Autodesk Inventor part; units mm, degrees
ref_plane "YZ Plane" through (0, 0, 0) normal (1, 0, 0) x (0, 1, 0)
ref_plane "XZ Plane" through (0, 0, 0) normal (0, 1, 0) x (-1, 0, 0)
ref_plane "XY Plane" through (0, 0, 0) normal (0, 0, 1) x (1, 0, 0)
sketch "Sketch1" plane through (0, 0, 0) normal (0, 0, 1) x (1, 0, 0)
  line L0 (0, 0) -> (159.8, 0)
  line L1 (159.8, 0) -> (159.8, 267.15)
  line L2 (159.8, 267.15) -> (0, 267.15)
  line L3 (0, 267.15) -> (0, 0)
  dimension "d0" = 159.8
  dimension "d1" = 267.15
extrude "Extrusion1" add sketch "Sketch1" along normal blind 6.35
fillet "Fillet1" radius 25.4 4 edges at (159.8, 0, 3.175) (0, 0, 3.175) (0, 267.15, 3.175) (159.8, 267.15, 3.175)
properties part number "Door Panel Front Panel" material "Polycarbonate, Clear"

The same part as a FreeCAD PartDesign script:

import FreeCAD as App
import Part
import Sketcher
from FreeCAD import Vector
Q = App.Units.Quantity


def edges_at(feature, points):
    """Names of the edges that pass closest to the given points."""
    edges = feature.Shape.Edges
    near = lambda p: min(range(len(edges)), key=lambda i: edges[i].distToShape(Part.Vertex(*p))[0])
    return sorted({f"Edge{near(p) + 1}" for p in points})


def add_polygon(sketch, points):
    """Adds a closed chain of lines whose ends are joined by coincident constraints."""
    first, n = sketch.GeometryCount, len(points)
    for a, b in zip(points, points[1:] + points[:1]):
        sketch.addGeometry(Part.LineSegment(App.Vector(*a, 0), App.Vector(*b, 0)), False)
    for i in range(n):
        sketch.addConstraint(Sketcher.Constraint("Coincident", first + i, 2, first + (i + 1) % n, 1))

doc = App.newDocument("Part")
body = doc.addObject("PartDesign::Body", "Body")

# Sketch on XY plane
sketch1 = body.newObject("Sketcher::SketchObject", "Sketch")
sketch1.AttachmentSupport = (doc.getObject("XY_Plane"), [""])
sketch1.MapMode = "FlatFace"
add_polygon(sketch1, [(0, 267), (0, 0), (160, 0), (160, 267)])  # lines 0-3
sketch1.addConstraint([
    Sketcher.Constraint("Vertical", 0),
    Sketcher.Constraint("Horizontal", 1),
    Sketcher.Constraint("Vertical", 2),
    Sketcher.Constraint("Horizontal", 3),
    Sketcher.Constraint("Coincident", 0, 2, -1, 1),
    Sketcher.Constraint("DistanceX", 1, 1, 1, 2, Q("159.8 mm")),
    Sketcher.Constraint("DistanceY", 0, 2, 0, 1, Q("267.15 mm")),
])
pad1 = body.newObject("PartDesign::Pad", "Pad")
pad1.Profile = sketch1
pad1.Length = Q("0.25 in")
doc.recompute()

fillet = body.newObject("PartDesign::Fillet", "Fillet")
fillet.Base = (pad1, edges_at(pad1, [
    (159.8, 0, 3.175),
    (0, 0, 3.175),
    (0, 267.15, 3.175),
    (159.8, 267.15, 3.175),
]))
fillet.Radius = Q("1 in")

doc.recompute()
